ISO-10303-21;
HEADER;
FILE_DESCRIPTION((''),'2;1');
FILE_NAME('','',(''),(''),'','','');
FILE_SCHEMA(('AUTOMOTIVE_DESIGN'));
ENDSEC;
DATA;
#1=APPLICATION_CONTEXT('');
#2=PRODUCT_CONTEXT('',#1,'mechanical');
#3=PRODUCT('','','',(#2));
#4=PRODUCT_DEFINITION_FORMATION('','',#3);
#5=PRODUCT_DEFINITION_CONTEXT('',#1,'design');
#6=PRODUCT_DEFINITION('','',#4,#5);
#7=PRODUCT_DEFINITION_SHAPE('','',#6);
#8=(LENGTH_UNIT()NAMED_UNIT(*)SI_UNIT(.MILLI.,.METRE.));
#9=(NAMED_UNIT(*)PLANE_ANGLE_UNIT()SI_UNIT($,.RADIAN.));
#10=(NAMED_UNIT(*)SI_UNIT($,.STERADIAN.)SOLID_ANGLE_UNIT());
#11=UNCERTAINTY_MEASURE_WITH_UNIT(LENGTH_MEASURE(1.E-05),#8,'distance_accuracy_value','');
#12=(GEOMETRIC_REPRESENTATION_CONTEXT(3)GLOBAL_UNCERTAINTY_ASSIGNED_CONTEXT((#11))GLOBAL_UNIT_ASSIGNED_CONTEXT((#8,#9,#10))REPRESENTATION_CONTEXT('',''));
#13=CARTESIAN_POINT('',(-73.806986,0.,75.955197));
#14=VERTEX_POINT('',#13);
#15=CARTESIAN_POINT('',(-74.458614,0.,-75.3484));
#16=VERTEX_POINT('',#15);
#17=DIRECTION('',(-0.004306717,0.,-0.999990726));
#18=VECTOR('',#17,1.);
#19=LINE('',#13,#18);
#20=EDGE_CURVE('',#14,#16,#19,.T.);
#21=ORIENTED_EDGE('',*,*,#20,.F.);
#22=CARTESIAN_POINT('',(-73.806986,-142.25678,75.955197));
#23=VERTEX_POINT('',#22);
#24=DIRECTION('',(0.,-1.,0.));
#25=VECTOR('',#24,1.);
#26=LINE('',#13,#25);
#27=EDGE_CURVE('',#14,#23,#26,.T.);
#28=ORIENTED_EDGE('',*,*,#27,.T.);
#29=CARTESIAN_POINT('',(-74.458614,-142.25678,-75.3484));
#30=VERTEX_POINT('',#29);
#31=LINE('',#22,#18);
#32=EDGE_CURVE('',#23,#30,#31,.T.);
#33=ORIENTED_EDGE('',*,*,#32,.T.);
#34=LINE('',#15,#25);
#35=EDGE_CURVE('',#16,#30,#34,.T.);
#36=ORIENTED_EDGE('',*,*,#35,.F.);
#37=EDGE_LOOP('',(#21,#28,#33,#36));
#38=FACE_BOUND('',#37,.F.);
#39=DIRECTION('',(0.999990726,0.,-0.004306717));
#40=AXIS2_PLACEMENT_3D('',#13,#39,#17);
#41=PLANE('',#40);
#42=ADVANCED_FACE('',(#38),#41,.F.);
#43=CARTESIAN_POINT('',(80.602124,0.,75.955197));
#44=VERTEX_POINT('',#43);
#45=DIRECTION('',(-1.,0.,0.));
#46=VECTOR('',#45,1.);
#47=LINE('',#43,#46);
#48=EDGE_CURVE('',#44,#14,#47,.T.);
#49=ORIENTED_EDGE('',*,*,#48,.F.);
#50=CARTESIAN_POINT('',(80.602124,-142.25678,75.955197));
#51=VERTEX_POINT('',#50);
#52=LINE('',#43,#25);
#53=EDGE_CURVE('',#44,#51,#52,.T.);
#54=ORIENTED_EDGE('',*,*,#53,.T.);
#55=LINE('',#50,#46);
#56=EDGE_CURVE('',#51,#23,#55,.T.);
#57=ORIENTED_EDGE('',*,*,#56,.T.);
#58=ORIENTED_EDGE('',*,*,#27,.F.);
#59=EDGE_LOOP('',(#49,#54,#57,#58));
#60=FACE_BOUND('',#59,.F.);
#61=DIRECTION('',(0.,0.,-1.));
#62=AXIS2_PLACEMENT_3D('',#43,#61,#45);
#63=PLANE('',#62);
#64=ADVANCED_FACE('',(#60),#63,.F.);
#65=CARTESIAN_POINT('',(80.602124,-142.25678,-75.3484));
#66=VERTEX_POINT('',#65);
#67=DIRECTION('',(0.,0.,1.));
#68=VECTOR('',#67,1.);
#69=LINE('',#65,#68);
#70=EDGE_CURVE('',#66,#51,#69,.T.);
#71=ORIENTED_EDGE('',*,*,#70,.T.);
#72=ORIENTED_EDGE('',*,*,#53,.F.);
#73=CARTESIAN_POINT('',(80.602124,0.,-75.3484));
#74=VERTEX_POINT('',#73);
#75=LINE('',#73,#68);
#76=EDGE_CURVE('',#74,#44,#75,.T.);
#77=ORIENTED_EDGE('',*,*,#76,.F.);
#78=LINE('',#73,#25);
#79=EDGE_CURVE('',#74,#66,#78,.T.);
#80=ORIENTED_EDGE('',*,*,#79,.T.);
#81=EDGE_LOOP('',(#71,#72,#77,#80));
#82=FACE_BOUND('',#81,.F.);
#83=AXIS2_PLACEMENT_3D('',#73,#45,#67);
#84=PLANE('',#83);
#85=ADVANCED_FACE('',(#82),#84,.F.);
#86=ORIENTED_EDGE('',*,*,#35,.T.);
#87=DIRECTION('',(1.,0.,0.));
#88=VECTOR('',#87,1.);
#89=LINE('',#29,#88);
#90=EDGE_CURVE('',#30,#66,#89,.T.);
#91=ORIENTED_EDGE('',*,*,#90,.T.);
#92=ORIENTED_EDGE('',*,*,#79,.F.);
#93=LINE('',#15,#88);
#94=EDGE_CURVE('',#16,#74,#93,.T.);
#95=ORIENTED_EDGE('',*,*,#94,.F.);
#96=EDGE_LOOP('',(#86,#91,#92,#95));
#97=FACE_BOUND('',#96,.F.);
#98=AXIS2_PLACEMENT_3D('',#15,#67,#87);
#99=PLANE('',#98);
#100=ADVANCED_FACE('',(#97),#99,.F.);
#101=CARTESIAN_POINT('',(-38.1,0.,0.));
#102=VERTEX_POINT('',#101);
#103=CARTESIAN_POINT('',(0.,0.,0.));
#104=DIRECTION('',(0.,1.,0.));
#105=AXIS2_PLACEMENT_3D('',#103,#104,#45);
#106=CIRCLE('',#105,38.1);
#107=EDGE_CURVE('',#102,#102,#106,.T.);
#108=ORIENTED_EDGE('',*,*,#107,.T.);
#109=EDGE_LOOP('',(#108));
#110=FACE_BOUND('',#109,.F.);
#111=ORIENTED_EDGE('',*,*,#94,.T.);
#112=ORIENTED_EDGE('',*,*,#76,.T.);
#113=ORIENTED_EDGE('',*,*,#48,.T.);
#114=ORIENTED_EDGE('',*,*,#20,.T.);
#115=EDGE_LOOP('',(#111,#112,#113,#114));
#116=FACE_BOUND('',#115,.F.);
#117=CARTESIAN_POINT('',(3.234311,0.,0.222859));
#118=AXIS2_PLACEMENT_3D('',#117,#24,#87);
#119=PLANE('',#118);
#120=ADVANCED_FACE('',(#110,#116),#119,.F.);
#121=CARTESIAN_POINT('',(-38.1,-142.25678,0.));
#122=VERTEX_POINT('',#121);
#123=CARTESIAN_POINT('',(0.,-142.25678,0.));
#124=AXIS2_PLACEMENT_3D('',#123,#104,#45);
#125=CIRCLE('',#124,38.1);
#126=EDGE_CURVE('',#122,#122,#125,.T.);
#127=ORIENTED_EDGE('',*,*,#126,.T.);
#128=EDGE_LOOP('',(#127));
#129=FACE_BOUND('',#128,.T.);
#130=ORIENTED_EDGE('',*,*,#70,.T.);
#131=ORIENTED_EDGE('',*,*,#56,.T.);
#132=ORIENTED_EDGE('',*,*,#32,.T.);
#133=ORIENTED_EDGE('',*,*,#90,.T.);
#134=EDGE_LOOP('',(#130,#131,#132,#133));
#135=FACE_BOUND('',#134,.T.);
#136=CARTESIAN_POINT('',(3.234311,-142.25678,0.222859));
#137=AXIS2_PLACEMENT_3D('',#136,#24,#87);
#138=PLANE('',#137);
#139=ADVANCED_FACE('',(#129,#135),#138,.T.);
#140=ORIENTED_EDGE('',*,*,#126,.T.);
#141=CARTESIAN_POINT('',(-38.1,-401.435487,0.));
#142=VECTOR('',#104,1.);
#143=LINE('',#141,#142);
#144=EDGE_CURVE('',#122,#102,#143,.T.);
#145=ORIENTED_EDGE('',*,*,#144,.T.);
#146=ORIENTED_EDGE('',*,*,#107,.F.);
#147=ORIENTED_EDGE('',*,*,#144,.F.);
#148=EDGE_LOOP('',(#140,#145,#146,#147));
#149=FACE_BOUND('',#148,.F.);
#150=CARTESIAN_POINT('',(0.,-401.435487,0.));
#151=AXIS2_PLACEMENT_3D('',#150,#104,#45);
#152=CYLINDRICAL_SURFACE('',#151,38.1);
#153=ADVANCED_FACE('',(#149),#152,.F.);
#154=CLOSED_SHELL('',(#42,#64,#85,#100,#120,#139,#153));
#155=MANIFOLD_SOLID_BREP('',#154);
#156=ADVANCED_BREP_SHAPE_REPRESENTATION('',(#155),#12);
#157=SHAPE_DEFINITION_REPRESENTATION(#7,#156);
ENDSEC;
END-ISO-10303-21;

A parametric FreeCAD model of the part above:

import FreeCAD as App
import Part
import Sketcher
Q = App.Units.Quantity


def add_polygon(sketch, points):
    """Adds a closed chain of lines whose ends are joined by coincident constraints."""
    first, n = sketch.GeometryCount, len(points)
    for a, b in zip(points, points[1:] + points[:1]):
        sketch.addGeometry(Part.LineSegment(App.Vector(*a, 0), App.Vector(*b, 0)), False)
    for i in range(n):
        sketch.addConstraint(Sketcher.Constraint("Coincident", first + i, 2, first + (i + 1) % n, 1))

doc = App.newDocument("Part")
body = doc.addObject("PartDesign::Body", "Body")

sketch1 = body.newObject("Sketcher::SketchObject", "Sketch")
sketch1.AttachmentSupport = (doc.getObject("XZ_Plane"), [""])
sketch1.MapMode = "FlatFace"
add_polygon(sketch1, [(81, 76), (-74, 76), (-74, -75), (81, -75)])
sketch1.addConstraint([
    Sketcher.Constraint("Horizontal", 0),
    Sketcher.Constraint("Horizontal", 2),
    Sketcher.Constraint("Vertical", 3),
    Sketcher.Constraint("Distance", 1, 151.305),
    Sketcher.Constraint("DistanceX", 0, 2, 0, 1, 154.409111),
    Sketcher.Constraint("DistanceX", 2, 1, 2, 2, 155.060738),
    Sketcher.Constraint("DistanceY", 1, 2, -1, 1, 75.3484),
    Sketcher.Constraint("DistanceX", 0, 2, -1, 1, 73.806986),
])
pad1 = body.newObject("PartDesign::Pad", "Pad")
pad1.Profile = sketch1
pad1.Length = 142.25678

sketch2 = body.newObject("Sketcher::SketchObject", "Sketch001")
sketch2.AttachmentSupport = (doc.getObject("XZ_Plane"), [""])
sketch2.MapMode = "FlatFace"
sketch2.AttachmentOffset = App.Placement(App.Vector(0, 0, 142.25678), App.Rotation())
sketch2.addGeometry(Part.Circle(App.Vector(0, 0, 0), App.Vector(0, 0, 1), 38), False)
sketch2.addConstraint([
    Sketcher.Constraint("Coincident", 0, 3, -1, 1),
    Sketcher.Constraint("Diameter", 0, Q("3 in")),
])
doc.recompute()
hole = body.newObject("PartDesign::Hole", "Hole")
hole.Profile = sketch2
hole.ThreadType = "None"
hole.Diameter = Q("3 in")
hole.DepthType = "ThroughAll"

doc.recompute()
